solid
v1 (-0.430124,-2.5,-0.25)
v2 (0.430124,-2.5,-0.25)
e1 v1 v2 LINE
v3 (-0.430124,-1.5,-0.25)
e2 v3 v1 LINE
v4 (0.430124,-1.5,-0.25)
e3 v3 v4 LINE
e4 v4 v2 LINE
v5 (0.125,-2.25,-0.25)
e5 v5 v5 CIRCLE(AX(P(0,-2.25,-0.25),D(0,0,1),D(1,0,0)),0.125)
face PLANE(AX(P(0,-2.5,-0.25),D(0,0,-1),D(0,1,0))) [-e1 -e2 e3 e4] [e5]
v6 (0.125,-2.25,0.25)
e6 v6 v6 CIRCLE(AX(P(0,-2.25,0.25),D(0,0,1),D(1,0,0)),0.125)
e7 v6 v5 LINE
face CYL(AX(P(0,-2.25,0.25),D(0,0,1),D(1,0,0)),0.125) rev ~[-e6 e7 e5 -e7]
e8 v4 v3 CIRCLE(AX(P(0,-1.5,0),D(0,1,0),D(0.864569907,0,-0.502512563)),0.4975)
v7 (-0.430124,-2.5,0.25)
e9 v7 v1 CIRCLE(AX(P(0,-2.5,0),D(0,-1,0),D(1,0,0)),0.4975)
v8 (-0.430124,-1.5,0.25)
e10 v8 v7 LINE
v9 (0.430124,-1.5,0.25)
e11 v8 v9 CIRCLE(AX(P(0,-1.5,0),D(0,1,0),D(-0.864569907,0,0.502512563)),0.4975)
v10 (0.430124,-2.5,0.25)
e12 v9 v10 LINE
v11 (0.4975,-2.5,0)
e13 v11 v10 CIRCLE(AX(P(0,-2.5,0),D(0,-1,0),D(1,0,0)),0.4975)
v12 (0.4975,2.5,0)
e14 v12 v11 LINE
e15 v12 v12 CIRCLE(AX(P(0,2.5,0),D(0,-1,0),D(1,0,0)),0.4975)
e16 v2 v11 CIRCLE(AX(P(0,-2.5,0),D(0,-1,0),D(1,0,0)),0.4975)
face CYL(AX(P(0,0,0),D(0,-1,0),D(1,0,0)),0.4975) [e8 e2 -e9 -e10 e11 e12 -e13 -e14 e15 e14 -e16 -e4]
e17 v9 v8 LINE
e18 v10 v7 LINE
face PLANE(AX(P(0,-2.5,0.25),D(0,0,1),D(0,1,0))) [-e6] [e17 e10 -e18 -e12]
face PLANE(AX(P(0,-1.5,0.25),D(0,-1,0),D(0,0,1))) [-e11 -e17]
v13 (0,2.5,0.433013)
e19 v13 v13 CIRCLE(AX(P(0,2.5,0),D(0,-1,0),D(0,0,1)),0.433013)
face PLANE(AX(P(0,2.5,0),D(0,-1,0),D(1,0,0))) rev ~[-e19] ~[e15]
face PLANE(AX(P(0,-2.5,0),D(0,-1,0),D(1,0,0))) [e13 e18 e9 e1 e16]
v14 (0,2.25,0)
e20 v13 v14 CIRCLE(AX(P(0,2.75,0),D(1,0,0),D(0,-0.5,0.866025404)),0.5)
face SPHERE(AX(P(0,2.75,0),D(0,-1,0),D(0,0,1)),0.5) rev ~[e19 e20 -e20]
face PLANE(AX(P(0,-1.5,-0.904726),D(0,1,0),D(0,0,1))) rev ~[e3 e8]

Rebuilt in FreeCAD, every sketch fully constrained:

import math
import FreeCAD as App
import Part
import Sketcher

V = App.Vector
Q = App.Units.Quantity

doc = App.newDocument("Part")
params = doc.addObject("Spreadsheet::Sheet", "Params")
for row, (alias, value) in enumerate([
    ("pad1_length", "5 mm"),
    ("sketch2_width", "1 mm"),
    ("sketch3_radius", "0.5 mm"),
    ("sketch3_width", "0.25 mm"),
    ("groove_angle", "360 deg"),
    ("sketch4_diameter", "0.25 mm"),
    ("pocket2_length", "25 mm"),
], start=1):
    params.set(f"A{row}", alias)
    params.set(f"B{row}", "=" + value)
    params.setAlias(f"B{row}", alias)

body = doc.addObject("PartDesign::Body", "Body")

sketch1 = body.newObject("Sketcher::SketchObject", "Sketch")
sketch1.AttachmentSupport = (doc.getObject("XZ_Plane"), [""])
sketch1.MapMode = "FlatFace"
sketch1.addGeometry(Part.Circle(V(0, 0, 0), V(0, 0, 1), 0.5), False)
sketch1.addConstraint([
    Sketcher.Constraint("Coincident", 0, 3, -1, 1),
    Sketcher.Constraint("Diameter", 0, Q("0.995 mm")),
])
pad1 = body.newObject("PartDesign::Pad", "Pad")
pad1.Profile = sketch1
pad1.setExpression("Length", "Params.pad1_length")
pad1.Midplane = True

sketch2 = body.newObject("Sketcher::SketchObject", "Sketch001")
sketch2.AttachmentSupport = (doc.getObject("YZ_Plane"), [""])
sketch2.MapMode = "FlatFace"
sketch2.addGeometry([
    Part.LineSegment(V(-2.5, 0.73, 0), V(-2.5, 0.25, 0)),
    Part.LineSegment(V(-2.5, 0.25, 0), V(-1.5, 0.25, 0)),
    Part.LineSegment(V(-1.5, 0.25, 0), V(-1.5, 0.73, 0)),
    Part.LineSegment(V(-1.5, 0.73, 0), V(-2.5, 0.73, 0)),
    Part.LineSegment(V(-2.5, -0.25, 0), V(-2.5, -0.9, 0)),
    Part.LineSegment(V(-2.5, -0.9, 0), V(-1.5, -0.9, 0)),
    Part.LineSegment(V(-1.5, -0.9, 0), V(-1.5, -0.25, 0)),
    Part.LineSegment(V(-1.5, -0.25, 0), V(-2.5, -0.25, 0)),
], False)
sketch2.addConstraint([
    Sketcher.Constraint("Coincident", 0, 2, 1, 1),
    Sketcher.Constraint("Coincident", 1, 2, 2, 1),
    Sketcher.Constraint("Coincident", 2, 2, 3, 1),
    Sketcher.Constraint("Coincident", 3, 2, 0, 1),
    Sketcher.Constraint("Coincident", 4, 2, 5, 1),
    Sketcher.Constraint("Coincident", 5, 2, 6, 1),
    Sketcher.Constraint("Coincident", 6, 2, 7, 1),
    Sketcher.Constraint("Coincident", 7, 2, 4, 1),
    Sketcher.Constraint("Vertical", 0),
    Sketcher.Constraint("Horizontal", 1),
    Sketcher.Constraint("Vertical", 2),
    Sketcher.Constraint("Horizontal", 3),
    Sketcher.Constraint("Vertical", 4),
    Sketcher.Constraint("Horizontal", 5),
    Sketcher.Constraint("Vertical", 6),
    Sketcher.Constraint("Horizontal", 7),
    Sketcher.Constraint("Symmetric", 1, 2, 6, 2, -1),
    Sketcher.Constraint("Vertical", 3, 2, 4, 2),
    Sketcher.Constraint("DistanceX", 1, 1, 1, 2, Q("1 mm")),
    Sketcher.Constraint("DistanceX", 0, 2, -1, 1, Q("2.5 mm")),
    Sketcher.Constraint("DistanceY", 6, 2, 1, 2, Q("0.5 mm")),
    Sketcher.Constraint("DistanceY", 0, 2, 0, 1, Q("0.477782 mm")),
    Sketcher.Constraint("DistanceY", 4, 2, 4, 1, Q("0.654726 mm")),
])
sketch2.setExpression("Constraints[18]", "Params.sketch2_width")
pocket1 = body.newObject("PartDesign::Pocket", "Pocket")
pocket1.Profile = sketch2
pocket1.Type = "ThroughAll"
pocket1.Midplane = True

sketch3 = body.newObject("Sketcher::SketchObject", "Sketch002")
sketch3.AttachmentSupport = (doc.getObject("YZ_Plane"), [""])
sketch3.MapMode = "FlatFace"
sketch3.addGeometry([
    Part.LineSegment(V(2.5, 0, 0), V(2.5, 0.43, 0)),
    Part.ArcOfCircle(Part.Circle(V(2.75, 0, 0), V(0, 0, 1), 0.5), math.radians(120), math.radians(180)),
    Part.LineSegment(V(2.25, 0, 0), V(2.5, 0, 0)),
], False)
sketch3.addConstraint([
    Sketcher.Constraint("Coincident", 0, 2, 1, 1),
    Sketcher.Constraint("Coincident", 1, 2, 2, 1),
    Sketcher.Constraint("Coincident", 2, 2, 0, 1),
    Sketcher.Constraint("Vertical", 0),
    Sketcher.Constraint("Horizontal", 2),
    Sketcher.Constraint("PointOnObject", 1, 3, -1),
    Sketcher.Constraint("PointOnObject", 1, 2, -1),
    Sketcher.Constraint("Radius", 1, Q("0.5 mm")),
    Sketcher.Constraint("DistanceX", 2, 1, 2, 2, Q("0.25 mm")),
    Sketcher.Constraint("DistanceX", -1, 1, 0, 2, Q("2.5 mm")),
])
sketch3.setExpression("Constraints[7]", "Params.sketch3_radius")
sketch3.setExpression("Constraints[8]", "Params.sketch3_width")
groove = body.newObject("PartDesign::Groove", "Groove")
groove.Profile = sketch3
groove.ReferenceAxis = (sketch3, ["H_Axis"])
groove.setExpression("Angle", "Params.groove_angle")

sketch4 = body.newObject("Sketcher::SketchObject", "Sketch003")
sketch4.AttachmentSupport = (doc.getObject("XY_Plane"), [""])
sketch4.MapMode = "FlatFace"
sketch4.AttachmentOffset = App.Placement(V(0, 0, 0.25), App.Rotation())
sketch4.addGeometry(Part.Circle(V(0, -2.25, 0), V(0, 0, 1), 0.12), False)
sketch4.addConstraint([
    Sketcher.Constraint("PointOnObject", 0, 3, -2),
    Sketcher.Constraint("Diameter", 0, Q("0.25 mm")),
    Sketcher.Constraint("DistanceY", 0, 3, -1, 1, Q("2.25 mm")),
])
sketch4.setExpression("Constraints[1]", "Params.sketch4_diameter")
pocket2 = body.newObject("PartDesign::Pocket", "Pocket001")
pocket2.Profile = sketch4
pocket2.setExpression("Length", "Params.pocket2_length")

doc.recompute()
